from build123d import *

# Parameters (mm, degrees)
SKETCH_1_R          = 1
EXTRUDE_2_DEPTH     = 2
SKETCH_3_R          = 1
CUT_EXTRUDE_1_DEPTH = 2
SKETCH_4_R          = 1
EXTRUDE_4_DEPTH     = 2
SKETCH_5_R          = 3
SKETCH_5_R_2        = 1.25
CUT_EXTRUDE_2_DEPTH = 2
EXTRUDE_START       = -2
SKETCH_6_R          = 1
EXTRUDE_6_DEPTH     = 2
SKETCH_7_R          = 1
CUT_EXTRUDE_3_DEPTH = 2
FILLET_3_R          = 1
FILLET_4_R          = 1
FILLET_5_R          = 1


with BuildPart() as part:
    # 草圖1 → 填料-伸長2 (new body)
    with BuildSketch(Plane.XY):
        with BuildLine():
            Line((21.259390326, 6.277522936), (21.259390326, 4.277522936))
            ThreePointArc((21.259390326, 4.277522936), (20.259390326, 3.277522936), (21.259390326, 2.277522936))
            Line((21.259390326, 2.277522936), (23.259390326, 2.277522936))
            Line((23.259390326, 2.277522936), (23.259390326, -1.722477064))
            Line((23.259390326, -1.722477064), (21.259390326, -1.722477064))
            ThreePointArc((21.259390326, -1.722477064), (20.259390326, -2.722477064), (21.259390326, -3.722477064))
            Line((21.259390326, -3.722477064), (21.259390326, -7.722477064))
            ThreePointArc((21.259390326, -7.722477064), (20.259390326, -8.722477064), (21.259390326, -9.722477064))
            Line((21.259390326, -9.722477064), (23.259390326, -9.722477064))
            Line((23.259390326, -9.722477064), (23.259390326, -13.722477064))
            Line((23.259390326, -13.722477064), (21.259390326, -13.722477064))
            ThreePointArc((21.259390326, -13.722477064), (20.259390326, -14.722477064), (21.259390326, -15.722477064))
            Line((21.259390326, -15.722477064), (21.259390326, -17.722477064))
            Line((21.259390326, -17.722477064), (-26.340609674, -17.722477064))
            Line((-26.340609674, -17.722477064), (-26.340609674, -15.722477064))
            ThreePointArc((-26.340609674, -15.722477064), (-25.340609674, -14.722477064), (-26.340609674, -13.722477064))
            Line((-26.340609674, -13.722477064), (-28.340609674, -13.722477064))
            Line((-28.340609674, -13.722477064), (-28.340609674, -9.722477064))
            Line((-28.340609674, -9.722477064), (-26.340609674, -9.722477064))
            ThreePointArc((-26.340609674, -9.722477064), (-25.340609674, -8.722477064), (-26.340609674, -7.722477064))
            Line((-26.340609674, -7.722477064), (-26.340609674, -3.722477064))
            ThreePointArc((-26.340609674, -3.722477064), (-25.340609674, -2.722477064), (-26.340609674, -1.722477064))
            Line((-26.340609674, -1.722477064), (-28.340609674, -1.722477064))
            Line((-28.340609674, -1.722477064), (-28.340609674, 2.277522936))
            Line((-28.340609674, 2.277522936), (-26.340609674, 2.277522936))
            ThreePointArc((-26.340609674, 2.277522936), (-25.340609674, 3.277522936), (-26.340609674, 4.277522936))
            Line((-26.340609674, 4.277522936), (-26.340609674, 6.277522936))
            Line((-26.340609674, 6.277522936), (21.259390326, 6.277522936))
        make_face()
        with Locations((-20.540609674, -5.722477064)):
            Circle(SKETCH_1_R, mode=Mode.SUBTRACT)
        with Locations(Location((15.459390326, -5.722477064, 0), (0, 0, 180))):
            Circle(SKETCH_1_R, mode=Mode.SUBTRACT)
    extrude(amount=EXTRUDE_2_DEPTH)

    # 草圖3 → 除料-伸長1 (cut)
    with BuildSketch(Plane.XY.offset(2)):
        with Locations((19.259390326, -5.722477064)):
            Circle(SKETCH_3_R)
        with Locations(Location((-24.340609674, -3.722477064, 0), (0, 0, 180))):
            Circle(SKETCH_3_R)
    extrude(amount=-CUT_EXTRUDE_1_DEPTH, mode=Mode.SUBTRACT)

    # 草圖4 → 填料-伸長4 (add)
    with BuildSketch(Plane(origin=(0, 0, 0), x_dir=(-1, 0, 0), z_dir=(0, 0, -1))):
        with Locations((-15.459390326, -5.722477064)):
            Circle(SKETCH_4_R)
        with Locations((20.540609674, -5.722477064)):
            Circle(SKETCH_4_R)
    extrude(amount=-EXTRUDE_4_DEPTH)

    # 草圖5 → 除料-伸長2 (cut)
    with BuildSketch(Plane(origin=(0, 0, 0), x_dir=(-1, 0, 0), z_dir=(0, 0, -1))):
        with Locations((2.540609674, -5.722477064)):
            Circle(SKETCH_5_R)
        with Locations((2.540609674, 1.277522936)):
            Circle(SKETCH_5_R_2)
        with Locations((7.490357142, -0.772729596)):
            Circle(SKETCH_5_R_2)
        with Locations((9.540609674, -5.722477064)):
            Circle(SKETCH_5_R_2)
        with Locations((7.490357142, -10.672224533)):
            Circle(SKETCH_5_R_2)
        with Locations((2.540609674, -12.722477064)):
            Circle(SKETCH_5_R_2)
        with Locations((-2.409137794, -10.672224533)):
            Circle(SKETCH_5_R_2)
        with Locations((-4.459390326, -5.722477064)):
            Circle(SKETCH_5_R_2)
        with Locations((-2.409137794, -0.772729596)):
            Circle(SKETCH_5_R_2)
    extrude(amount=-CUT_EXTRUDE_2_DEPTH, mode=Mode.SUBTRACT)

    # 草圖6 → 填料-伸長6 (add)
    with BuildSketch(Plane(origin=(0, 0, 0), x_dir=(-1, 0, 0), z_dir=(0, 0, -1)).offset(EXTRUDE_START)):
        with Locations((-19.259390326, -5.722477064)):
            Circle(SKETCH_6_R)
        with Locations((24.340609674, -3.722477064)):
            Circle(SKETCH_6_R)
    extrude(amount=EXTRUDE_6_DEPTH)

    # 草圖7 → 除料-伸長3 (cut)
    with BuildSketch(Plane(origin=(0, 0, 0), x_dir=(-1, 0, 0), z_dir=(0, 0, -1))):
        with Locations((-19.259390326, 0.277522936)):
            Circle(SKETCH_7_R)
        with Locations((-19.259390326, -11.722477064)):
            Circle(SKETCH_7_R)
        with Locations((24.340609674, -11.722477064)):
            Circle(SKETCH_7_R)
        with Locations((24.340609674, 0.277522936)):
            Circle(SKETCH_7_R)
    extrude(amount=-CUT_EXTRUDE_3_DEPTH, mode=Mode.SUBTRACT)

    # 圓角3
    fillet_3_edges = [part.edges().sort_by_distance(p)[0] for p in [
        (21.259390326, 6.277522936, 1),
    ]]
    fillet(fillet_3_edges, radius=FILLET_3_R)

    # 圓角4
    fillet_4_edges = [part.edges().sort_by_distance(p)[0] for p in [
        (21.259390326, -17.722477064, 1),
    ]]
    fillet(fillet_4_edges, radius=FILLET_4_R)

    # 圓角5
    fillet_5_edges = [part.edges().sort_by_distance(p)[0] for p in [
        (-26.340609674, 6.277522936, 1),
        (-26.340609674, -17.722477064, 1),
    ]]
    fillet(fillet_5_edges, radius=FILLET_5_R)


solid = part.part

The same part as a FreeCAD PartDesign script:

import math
import FreeCAD as App
import Part
import Sketcher


def edges_at(feature, points):
    """Names of the edges that pass closest to the given points."""
    edges = feature.Shape.Edges
    near = lambda p: min(range(len(edges)), key=lambda i: edges[i].distToShape(Part.Vertex(*p))[0])
    return sorted({f"Edge{near(p) + 1}" for p in points})

doc = App.newDocument("Part")
params = doc.addObject("Spreadsheet::Sheet", "Params")
for row, (alias, value) in enumerate([
    ("sketch1_diameter", "2 mm"),
    ("sketch1_width", "2 mm"),
    ("sketch1_height", "4 mm"),
    ("sketch1_width2", "47.6 mm"),
    ("pad1_length", "2 mm"),
    ("sketch2_diameter", "2 mm"),
    ("pocket1_length", "2 mm"),
    ("sketch3_diameter", "2 mm"),
    ("pad2_length", "2 mm"),
    ("sketch4_diameter", "6 mm"),
    ("sketch4_diameter2", "2.5 mm"),
    ("pocket2_length", "2 mm"),
    ("sketch5_diameter", "2 mm"),
    ("pad3_length", "2 mm"),
    ("sketch6_diameter", "2 mm"),
    ("pocket3_length", "2 mm"),
    ("fillet_radius", "1 mm"),
    ("fillet2_radius", "1 mm"),
    ("fillet3_radius", "1 mm"),
], start=1):
    params.set(f"A{row}", alias)
    params.set(f"B{row}", "=" + value)
    params.setAlias(f"B{row}", alias)

body = doc.addObject("PartDesign::Body", "Body")

# Sketch on XY plane
sketch1 = body.newObject("Sketcher::SketchObject", "Sketch")
sketch1.AttachmentSupport = (doc.getObject("XY_Plane"), [""])
sketch1.MapMode = "FlatFace"
sketch1.addGeometry(Part.LineSegment(App.Vector(21.3, 4.3, 0), App.Vector(21.3, 6.3, 0)), False)
sketch1.addGeometry(Part.LineSegment(App.Vector(21.3, 6.3, 0), App.Vector(-26.3, 6.3, 0)), False)
sketch1.addGeometry(Part.LineSegment(App.Vector(-26.3, 6.3, 0), App.Vector(-26.3, 4.3, 0)), False)
sketch1.addGeometry(Part.ArcOfCircle(Part.Circle(App.Vector(-26.3, 3.3, 0), App.Vector(0, 0, 1), 1), math.radians(-90), math.radians(90)), False)
sketch1.addGeometry(Part.LineSegment(App.Vector(-26.3, 2.3, 0), App.Vector(-28.3, 2.3, 0)), False)
sketch1.addGeometry(Part.LineSegment(App.Vector(-28.3, 2.3, 0), App.Vector(-28.3, -1.7, 0)), False)
sketch1.addGeometry(Part.LineSegment(App.Vector(-28.3, -1.7, 0), App.Vector(-26.3, -1.7, 0)), False)
sketch1.addGeometry(Part.ArcOfCircle(Part.Circle(App.Vector(-26.3, -2.7, 0), App.Vector(0, 0, 1), 1), math.radians(-90), math.radians(90)), False)
sketch1.addGeometry(Part.LineSegment(App.Vector(-26.3, -3.7, 0), App.Vector(-26.3, -7.7, 0)), False)
sketch1.addGeometry(Part.ArcOfCircle(Part.Circle(App.Vector(-26.3, -8.7, 0), App.Vector(0, 0, 1), 1), math.radians(-90), math.radians(90)), False)
sketch1.addGeometry(Part.LineSegment(App.Vector(-26.3, -9.7, 0), App.Vector(-28.3, -9.7, 0)), False)
sketch1.addGeometry(Part.LineSegment(App.Vector(-28.3, -9.7, 0), App.Vector(-28.3, -13.7, 0)), False)
sketch1.addGeometry(Part.LineSegment(App.Vector(-28.3, -13.7, 0), App.Vector(-26.3, -13.7, 0)), False)
sketch1.addGeometry(Part.ArcOfCircle(Part.Circle(App.Vector(-26.3, -14.7, 0), App.Vector(0, 0, 1), 1), math.radians(-90), math.radians(90)), False)
sketch1.addGeometry(Part.LineSegment(App.Vector(-26.3, -15.7, 0), App.Vector(-26.3, -17.7, 0)), False)
sketch1.addGeometry(Part.LineSegment(App.Vector(-26.3, -17.7, 0), App.Vector(21.3, -17.7, 0)), False)
sketch1.addGeometry(Part.LineSegment(App.Vector(21.3, -17.7, 0), App.Vector(21.3, -15.7, 0)), False)
sketch1.addGeometry(Part.ArcOfCircle(Part.Circle(App.Vector(21.3, -14.7, 0), App.Vector(0, 0, 1), 1), math.radians(90), math.radians(270)), False)
sketch1.addGeometry(Part.LineSegment(App.Vector(21.3, -13.7, 0), App.Vector(23.3, -13.7, 0)), False)
sketch1.addGeometry(Part.LineSegment(App.Vector(23.3, -13.7, 0), App.Vector(23.3, -9.7, 0)), False)
sketch1.addGeometry(Part.LineSegment(App.Vector(23.3, -9.7, 0), App.Vector(21.3, -9.7, 0)), False)
sketch1.addGeometry(Part.ArcOfCircle(Part.Circle(App.Vector(21.3, -8.7, 0), App.Vector(0, 0, 1), 1), math.radians(90), math.radians(270)), False)
sketch1.addGeometry(Part.LineSegment(App.Vector(21.3, -7.7, 0), App.Vector(21.3, -3.7, 0)), False)
sketch1.addGeometry(Part.ArcOfCircle(Part.Circle(App.Vector(21.3, -2.7, 0), App.Vector(0, 0, 1), 1), math.radians(90), math.radians(270)), False)
sketch1.addGeometry(Part.LineSegment(App.Vector(21.3, -1.7, 0), App.Vector(23.3, -1.7, 0)), False)
sketch1.addGeometry(Part.LineSegment(App.Vector(23.3, -1.7, 0), App.Vector(23.3, 2.3, 0)), False)
sketch1.addGeometry(Part.LineSegment(App.Vector(23.3, 2.3, 0), App.Vector(21.3, 2.3, 0)), False)
sketch1.addGeometry(Part.ArcOfCircle(Part.Circle(App.Vector(21.3, 3.3, 0), App.Vector(0, 0, 1), 1), math.radians(90), math.radians(270)), False)
sketch1.addGeometry(Part.Circle(App.Vector(15.5, -5.7, 0), App.Vector(0, 0, 1), 1), False)
sketch1.addGeometry(Part.Circle(App.Vector(-20.5, -5.7, 0), App.Vector(0, 0, 1), 1), False)
sketch1.addConstraint(Sketcher.Constraint("Coincident", 0, 2, 1, 1))
sketch1.addConstraint(Sketcher.Constraint("Coincident", 1, 2, 2, 1))
sketch1.addConstraint(Sketcher.Constraint("Coincident", 2, 2, 3, 2))
sketch1.addConstraint(Sketcher.Constraint("Tangent", 3, 1, 4, 1))
sketch1.addConstraint(Sketcher.Constraint("Coincident", 4, 2, 5, 1))
sketch1.addConstraint(Sketcher.Constraint("Coincident", 5, 2, 6, 1))
sketch1.addConstraint(Sketcher.Constraint("Tangent", 6, 2, 7, 2))
sketch1.addConstraint(Sketcher.Constraint("Coincident", 7, 1, 8, 1))
sketch1.addConstraint(Sketcher.Constraint("Coincident", 8, 2, 9, 2))
sketch1.addConstraint(Sketcher.Constraint("Tangent", 9, 1, 10, 1))
sketch1.addConstraint(Sketcher.Constraint("Coincident", 10, 2, 11, 1))
sketch1.addConstraint(Sketcher.Constraint("Coincident", 11, 2, 12, 1))
sketch1.addConstraint(Sketcher.Constraint("Tangent", 12, 2, 13, 2))
sketch1.addConstraint(Sketcher.Constraint("Coincident", 13, 1, 14, 1))
sketch1.addConstraint(Sketcher.Constraint("Coincident", 14, 2, 15, 1))
sketch1.addConstraint(Sketcher.Constraint("Coincident", 15, 2, 16, 1))
sketch1.addConstraint(Sketcher.Constraint("Coincident", 16, 2, 17, 2))
sketch1.addConstraint(Sketcher.Constraint("Tangent", 17, 1, 18, 1))
sketch1.addConstraint(Sketcher.Constraint("Coincident", 18, 2, 19, 1))
sketch1.addConstraint(Sketcher.Constraint("Coincident", 19, 2, 20, 1))
sketch1.addConstraint(Sketcher.Constraint("Tangent", 20, 2, 21, 2))
sketch1.addConstraint(Sketcher.Constraint("Coincident", 21, 1, 22, 1))
sketch1.addConstraint(Sketcher.Constraint("Coincident", 22, 2, 23, 2))
sketch1.addConstraint(Sketcher.Constraint("Tangent", 23, 1, 24, 1))
sketch1.addConstraint(Sketcher.Constraint("Coincident", 24, 2, 25, 1))
sketch1.addConstraint(Sketcher.Constraint("Coincident", 25, 2, 26, 1))
sketch1.addConstraint(Sketcher.Constraint("Tangent", 26, 2, 27, 2))
sketch1.addConstraint(Sketcher.Constraint("Coincident", 27, 1, 0, 1))
sketch1.addConstraint(Sketcher.Constraint("Vertical", 0))
sketch1.addConstraint(Sketcher.Constraint("Horizontal", 1))
sketch1.addConstraint(Sketcher.Constraint("Vertical", 2))
sketch1.addConstraint(Sketcher.Constraint("Horizontal", 4))
sketch1.addConstraint(Sketcher.Constraint("Vertical", 5))
sketch1.addConstraint(Sketcher.Constraint("Horizontal", 6))
sketch1.addConstraint(Sketcher.Constraint("Vertical", 8))
sketch1.addConstraint(Sketcher.Constraint("Horizontal", 10))
sketch1.addConstraint(Sketcher.Constraint("Vertical", 11))
sketch1.addConstraint(Sketcher.Constraint("Horizontal", 12))
sketch1.addConstraint(Sketcher.Constraint("Vertical", 14))
sketch1.addConstraint(Sketcher.Constraint("Horizontal", 15))
sketch1.addConstraint(Sketcher.Constraint("Vertical", 16))
sketch1.addConstraint(Sketcher.Constraint("Horizontal", 18))
sketch1.addConstraint(Sketcher.Constraint("Vertical", 19))
sketch1.addConstraint(Sketcher.Constraint("Horizontal", 20))
sketch1.addConstraint(Sketcher.Constraint("Vertical", 22))
sketch1.addConstraint(Sketcher.Constraint("Horizontal", 24))
sketch1.addConstraint(Sketcher.Constraint("Vertical", 25))
sketch1.addConstraint(Sketcher.Constraint("Horizontal", 26))
sketch1.addConstraint(Sketcher.Constraint("Equal", 3, 7))
sketch1.addConstraint(Sketcher.Constraint("Equal", 7, 9))
sketch1.addConstraint(Sketcher.Constraint("Equal", 9, 13))
sketch1.addConstraint(Sketcher.Constraint("Equal", 13, 17))
sketch1.addConstraint(Sketcher.Constraint("Equal", 17, 21))
sketch1.addConstraint(Sketcher.Constraint("Equal", 21, 23))
sketch1.addConstraint(Sketcher.Constraint("Equal", 23, 27))
sketch1.addConstraint(Sketcher.Constraint("Equal", 27, 28))
sketch1.addConstraint(Sketcher.Constraint("Equal", 28, 29))
sketch1.addConstraint(Sketcher.Constraint("Horizontal", 13, 3, 17, 3))
sketch1.addConstraint(Sketcher.Constraint("Horizontal", 9, 3, 21, 3))
sketch1.addConstraint(Sketcher.Constraint("Horizontal", 7, 3, 23, 3))
sketch1.addConstraint(Sketcher.Constraint("Horizontal", 3, 3, 27, 3))
sketch1.addConstraint(Sketcher.Constraint("Horizontal", 28, 3, 29, 3))
sketch1.addConstraint(Sketcher.Constraint("Vertical", 3, 3, 7, 3))
sketch1.addConstraint(Sketcher.Constraint("Vertical", 7, 3, 9, 3))
sketch1.addConstraint(Sketcher.Constraint("Vertical", 9, 3, 13, 3))
sketch1.addConstraint(Sketcher.Constraint("Vertical", 17, 3, 21, 3))
sketch1.addConstraint(Sketcher.Constraint("Vertical", 21, 3, 23, 3))
sketch1.addConstraint(Sketcher.Constraint("Vertical", 23, 3, 27, 3))
sketch1.addConstraint(Sketcher.Constraint("Vertical", 27, 3, 0, 2))
sketch1.addConstraint(Sketcher.Constraint("Vertical", 13, 3, 1, 2))
sketch1.addConstraint(Sketcher.Constraint("Vertical", 6, 2, 7, 1))
sketch1.addConstraint(Sketcher.Constraint("Vertical", 5, 2, 10, 2))
sketch1.addConstraint(Sketcher.Constraint("Vertical", 12, 2, 13, 1))
sketch1.addConstraint(Sketcher.Constraint("Vertical", 0, 2, 15, 2))
sketch1.addConstraint(Sketcher.Constraint("Vertical", 20, 2, 21, 1))
sketch1.addConstraint(Sketcher.Constraint("Vertical", 19, 2, 24, 2))
sketch1.addConstraint(Sketcher.Constraint("Equal", 12, 18))
sketch1.addConstraint(Sketcher.Constraint("Equal", 26, 0))
sketch1.addConstraint(Sketcher.Constraint("Equal", 5, 8))
sketch1.addConstraint(Sketcher.Constraint("Equal", 8, 11))
sketch1.addConstraint(Sketcher.Constraint("Equal", 2, 14))
sketch1.addConstraint(Sketcher.Constraint("Diameter", 28, 2.0))
sketch1.addConstraint(Sketcher.Constraint("DistanceX", 4, 2, 4, 1, 2.0))
sketch1.addConstraint(Sketcher.Constraint("DistanceY", 5, 2, 5, 1, 4.0))
sketch1.addConstraint(Sketcher.Constraint("DistanceX", 1, 2, 1, 1, 47.6))
sketch1.addConstraint(Sketcher.Constraint("DistanceY", 21, 3, 28, 3, 3.0))
sketch1.addConstraint(Sketcher.Constraint("DistanceX", 29, 3, 28, 3, 36.0))
sketch1.addConstraint(Sketcher.Constraint("DistanceX", 28, 3, 21, 3, 5.8))
sketch1.addConstraint(Sketcher.Constraint("DistanceX", 3, 3, -1, 1, 26.34061))
sketch1.addConstraint(Sketcher.Constraint("DistanceY", -1, 1, 3, 3, 3.277523))
sketch1.setExpression("Constraints[81]", "Params.sketch1_diameter")
sketch1.setExpression("Constraints[82]", "Params.sketch1_width")
sketch1.setExpression("Constraints[83]", "Params.sketch1_height")
sketch1.setExpression("Constraints[84]", "Params.sketch1_width2")
pad1 = body.newObject("PartDesign::Pad", "Pad")
pad1.Profile = sketch1
pad1.setExpression("Length", "Params.pad1_length")

# Sketch on XY plane
sketch2 = body.newObject("Sketcher::SketchObject", "Sketch001")
sketch2.AttachmentSupport = (doc.getObject("XY_Plane"), [""])
sketch2.MapMode = "FlatFace"
sketch2.AttachmentOffset = App.Placement(App.Vector(0, 0, 2), App.Rotation())
sketch2.addGeometry(Part.Circle(App.Vector(19.3, -5.7, 0), App.Vector(0, 0, 1), 1), False)
sketch2.addGeometry(Part.Circle(App.Vector(-24.3, -3.7, 0), App.Vector(0, 0, 1), 1), False)
sketch2.addConstraint(Sketcher.Constraint("Equal", 0, 1))
sketch2.addConstraint(Sketcher.Constraint("Diameter", 0, 2.0))
sketch2.addConstraint(Sketcher.Constraint("DistanceY", 0, 3, 1, 3, 2.0))
sketch2.addConstraint(Sketcher.Constraint("DistanceX", 1, 3, 0, 3, 43.6))
sketch2.addConstraint(Sketcher.Constraint("DistanceX", -1, 1, 0, 3, 19.25939))
sketch2.addConstraint(Sketcher.Constraint("DistanceY", 0, 3, -1, 1, 5.722477))
sketch2.setExpression("Constraints[1]", "Params.sketch2_diameter")
pocket1 = body.newObject("PartDesign::Pocket", "Pocket")
pocket1.Profile = sketch2
pocket1.setExpression("Length", "Params.pocket1_length")

# Sketch on XY plane
sketch3 = body.newObject("Sketcher::SketchObject", "Sketch002")
sketch3.AttachmentSupport = (doc.getObject("XY_Plane"), [""])
sketch3.MapMode = "FlatFace"
sketch3.addGeometry(Part.Circle(App.Vector(15.5, -5.7, 0), App.Vector(0, 0, 1), 1), False)
sketch3.addGeometry(Part.Circle(App.Vector(-20.5, -5.7, 0), App.Vector(0, 0, 1), 1), False)
sketch3.addConstraint(Sketcher.Constraint("Equal", 0, 1))
sketch3.addConstraint(Sketcher.Constraint("Horizontal", 0, 3, 1, 3))
sketch3.addConstraint(Sketcher.Constraint("Diameter", 0, 2.0))
sketch3.addConstraint(Sketcher.Constraint("DistanceX", 1, 3, 0, 3, 36.0))
sketch3.addConstraint(Sketcher.Constraint("DistanceX", -1, 1, 0, 3, 15.45939))
sketch3.addConstraint(Sketcher.Constraint("DistanceY", 0, 3, -1, 1, 5.722477))
sketch3.setExpression("Constraints[2]", "Params.sketch3_diameter")
pad2 = body.newObject("PartDesign::Pad", "Pad001")
pad2.Profile = sketch3
pad2.setExpression("Length", "Params.pad2_length")

# Sketch on XY plane
sketch4 = body.newObject("Sketcher::SketchObject", "Sketch003")
sketch4.AttachmentSupport = (doc.getObject("XY_Plane"), [""])
sketch4.MapMode = "FlatFace"
sketch4.addGeometry(Part.Circle(App.Vector(-2.5, -5.7, 0), App.Vector(0, 0, 1), 3), False)
sketch4.addGeometry(Part.Circle(App.Vector(-2.5, 1.3, 0), App.Vector(0, 0, 1), 1.2), False)
sketch4.addGeometry(Part.Circle(App.Vector(-7.5, -0.8, 0), App.Vector(0, 0, 1), 1.2), False)
sketch4.addGeometry(Part.Circle(App.Vector(-9.5, -5.7, 0), App.Vector(0, 0, 1), 1.2), False)
sketch4.addGeometry(Part.Circle(App.Vector(-7.5, -10.7, 0), App.Vector(0, 0, 1), 1.2), False)
sketch4.addGeometry(Part.Circle(App.Vector(-2.5, -12.7, 0), App.Vector(0, 0, 1), 1.2), False)
sketch4.addGeometry(Part.Circle(App.Vector(2.4, -10.7, 0), App.Vector(0, 0, 1), 1.2), False)
sketch4.addGeometry(Part.Circle(App.Vector(4.5, -5.7, 0), App.Vector(0, 0, 1), 1.2), False)
sketch4.addGeometry(Part.Circle(App.Vector(2.4, -0.8, 0), App.Vector(0, 0, 1), 1.2), False)
sketch4.addConstraint(Sketcher.Constraint("Equal", 1, 2))
sketch4.addConstraint(Sketcher.Constraint("Equal", 2, 3))
sketch4.addConstraint(Sketcher.Constraint("Equal", 3, 4))
sketch4.addConstraint(Sketcher.Constraint("Equal", 4, 5))
sketch4.addConstraint(Sketcher.Constraint("Equal", 5, 6))
sketch4.addConstraint(Sketcher.Constraint("Equal", 6, 7))
sketch4.addConstraint(Sketcher.Constraint("Equal", 7, 8))
sketch4.addConstraint(Sketcher.Constraint("Horizontal", 0, 3, 3, 3))
sketch4.addConstraint(Sketcher.Constraint("Horizontal", 4, 3, 6, 3))
sketch4.addConstraint(Sketcher.Constraint("Horizontal", 3, 3, 7, 3))
sketch4.addConstraint(Sketcher.Constraint("Horizontal", 2, 3, 8, 3))
sketch4.addConstraint(Sketcher.Constraint("Vertical", 0, 3, 1, 3))
sketch4.addConstraint(Sketcher.Constraint("Vertical", 2, 3, 4, 3))
sketch4.addConstraint(Sketcher.Constraint("Vertical", 1, 3, 5, 3))
sketch4.addConstraint(Sketcher.Constraint("Vertical", 6, 3, 8, 3))
sketch4.addConstraint(Sketcher.Constraint("Diameter", 0, 6.0))
sketch4.addConstraint(Sketcher.Constraint("Diameter", 1, 2.5))
sketch4.addConstraint(Sketcher.Constraint("DistanceY", 0, 3, 1, 3, 7.0))
sketch4.addConstraint(Sketcher.Constraint("DistanceX", 3, 3, 0, 3, 7.0))
sketch4.addConstraint(Sketcher.Constraint("DistanceY", 5, 3, 0, 3, 7.0))
sketch4.addConstraint(Sketcher.Constraint("DistanceX", 0, 3, 7, 3, 7.0))
sketch4.addConstraint(Sketcher.Constraint("DistanceX", 0, 3, -1, 1, 2.54061))
sketch4.addConstraint(Sketcher.Constraint("DistanceY", 2, 3, -1, 1, 0.77273))
sketch4.addConstraint(Sketcher.Constraint("DistanceY", 0, 3, -1, 1, 5.722477))
sketch4.addConstraint(Sketcher.Constraint("DistanceX", 2, 3, -1, 1, 7.490357))
sketch4.addConstraint(Sketcher.Constraint("DistanceY", 4, 3, -1, 1, 10.672225))
sketch4.addConstraint(Sketcher.Constraint("DistanceX", -1, 1, 6, 3, 2.409138))
sketch4.setExpression("Constraints[15]", "Params.sketch4_diameter")
sketch4.setExpression("Constraints[16]", "Params.sketch4_diameter2")
pocket2 = body.newObject("PartDesign::Pocket", "Pocket001")
pocket2.Profile = sketch4
pocket2.setExpression("Length", "Params.pocket2_length")
pocket2.Reversed = True

# Sketch on XY plane
sketch5 = body.newObject("Sketcher::SketchObject", "Sketch004")
sketch5.AttachmentSupport = (doc.getObject("XY_Plane"), [""])
sketch5.MapMode = "FlatFace"
sketch5.AttachmentOffset = App.Placement(App.Vector(0, 0, 2), App.Rotation())
sketch5.addGeometry(Part.Circle(App.Vector(19.3, -5.7, 0), App.Vector(0, 0, 1), 1), False)
sketch5.addGeometry(Part.Circle(App.Vector(-24.3, -3.7, 0), App.Vector(0, 0, 1), 1), False)
sketch5.addConstraint(Sketcher.Constraint("Equal", 0, 1))
sketch5.addConstraint(Sketcher.Constraint("Diameter", 0, 2.0))
sketch5.addConstraint(Sketcher.Constraint("DistanceY", 0, 3, 1, 3, 2.0))
sketch5.addConstraint(Sketcher.Constraint("DistanceX", 1, 3, 0, 3, 43.6))
sketch5.addConstraint(Sketcher.Constraint("DistanceX", -1, 1, 0, 3, 19.25939))
sketch5.addConstraint(Sketcher.Constraint("DistanceY", 0, 3, -1, 1, 5.722477))
sketch5.setExpression("Constraints[1]", "Params.sketch5_diameter")
pad3 = body.newObject("PartDesign::Pad", "Pad002")
pad3.Profile = sketch5
pad3.setExpression("Length", "Params.pad3_length")
pad3.Reversed = True

# Sketch on XY plane
sketch6 = body.newObject("Sketcher::SketchObject", "Sketch005")
sketch6.AttachmentSupport = (doc.getObject("XY_Plane"), [""])
sketch6.MapMode = "FlatFace"
sketch6.addGeometry(Part.Circle(App.Vector(19.3, 0.3, 0), App.Vector(0, 0, 1), 1), False)
sketch6.addGeometry(Part.Circle(App.Vector(19.3, -11.7, 0), App.Vector(0, 0, 1), 1), False)
sketch6.addGeometry(Part.Circle(App.Vector(-24.3, -11.7, 0), App.Vector(0, 0, 1), 1), False)
sketch6.addGeometry(Part.Circle(App.Vector(-24.3, 0.3, 0), App.Vector(0, 0, 1), 1), False)
sketch6.addConstraint(Sketcher.Constraint("Equal", 0, 1))
sketch6.addConstraint(Sketcher.Constraint("Equal", 1, 2))
sketch6.addConstraint(Sketcher.Constraint("Equal", 2, 3))
sketch6.addConstraint(Sketcher.Constraint("Horizontal", 1, 3, 2, 3))
sketch6.addConstraint(Sketcher.Constraint("Horizontal", 0, 3, 3, 3))
sketch6.addConstraint(Sketcher.Constraint("Vertical", 0, 3, 1, 3))
sketch6.addConstraint(Sketcher.Constraint("Vertical", 2, 3, 3, 3))
sketch6.addConstraint(Sketcher.Constraint("Diameter", 0, 2.0))
sketch6.addConstraint(Sketcher.Constraint("DistanceY", 1, 3, 0, 3, 12.0))
sketch6.addConstraint(Sketcher.Constraint("DistanceX", 2, 3, 1, 3, 43.6))
sketch6.addConstraint(Sketcher.Constraint("DistanceX", -1, 1, 0, 3, 19.25939))
sketch6.addConstraint(Sketcher.Constraint("DistanceY", -1, 1, 0, 3, 0.277523))
sketch6.setExpression("Constraints[7]", "Params.sketch6_diameter")
pocket3 = body.newObject("PartDesign::Pocket", "Pocket002")
pocket3.Profile = sketch6
pocket3.setExpression("Length", "Params.pocket3_length")
pocket3.Reversed = True
doc.recompute()

fillet = body.newObject("PartDesign::Fillet", "Fillet")
fillet.Base = (pocket3, edges_at(pocket3, [(21.259, 6.278, 1)]))
fillet.setExpression("Radius", "Params.fillet_radius")
doc.recompute()

fillet2 = body.newObject("PartDesign::Fillet", "Fillet001")
fillet2.Base = (fillet, edges_at(fillet, [(21.259, -17.722, 1)]))
fillet2.setExpression("Radius", "Params.fillet2_radius")
doc.recompute()

fillet3 = body.newObject("PartDesign::Fillet", "Fillet002")
fillet3.Base = (fillet2, edges_at(fillet2, [(-26.341, 6.278, 1), (-26.341, -17.722, 1)]))
fillet3.setExpression("Radius", "Params.fillet3_radius")

doc.recompute()
